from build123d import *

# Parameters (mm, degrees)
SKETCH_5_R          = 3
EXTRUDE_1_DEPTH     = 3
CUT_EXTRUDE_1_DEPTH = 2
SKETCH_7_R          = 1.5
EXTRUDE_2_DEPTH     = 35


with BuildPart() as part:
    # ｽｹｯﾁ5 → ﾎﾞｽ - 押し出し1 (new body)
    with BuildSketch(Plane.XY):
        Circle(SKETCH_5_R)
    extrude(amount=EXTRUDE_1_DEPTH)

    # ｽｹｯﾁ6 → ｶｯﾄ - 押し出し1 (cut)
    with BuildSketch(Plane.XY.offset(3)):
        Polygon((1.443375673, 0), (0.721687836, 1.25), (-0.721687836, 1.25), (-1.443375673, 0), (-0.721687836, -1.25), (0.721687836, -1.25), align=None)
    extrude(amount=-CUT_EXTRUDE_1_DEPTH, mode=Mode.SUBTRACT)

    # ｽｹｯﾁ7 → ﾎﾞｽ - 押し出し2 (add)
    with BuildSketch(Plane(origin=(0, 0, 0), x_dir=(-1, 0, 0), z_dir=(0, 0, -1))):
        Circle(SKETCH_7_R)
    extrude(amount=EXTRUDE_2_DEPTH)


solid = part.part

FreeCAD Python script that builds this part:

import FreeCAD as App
import Part
import Sketcher

V = App.Vector
Q = App.Units.Quantity


def add_polygon(sketch, points):
    """Adds a closed chain of lines whose ends are joined by coincident constraints."""
    first, n = sketch.GeometryCount, len(points)
    for a, b in zip(points, points[1:] + points[:1]):
        sketch.addGeometry(Part.LineSegment(App.Vector(*a, 0), App.Vector(*b, 0)), False)
    for i in range(n):
        sketch.addConstraint(Sketcher.Constraint("Coincident", first + i, 2, first + (i + 1) % n, 1))

doc = App.newDocument("Part")
body = doc.addObject("PartDesign::Body", "Body")

sketch1 = body.newObject("Sketcher::SketchObject", "Sketch")
sketch1.AttachmentSupport = (doc.getObject("XY_Plane"), [""])
sketch1.MapMode = "FlatFace"
sketch1.addGeometry(Part.Circle(V(0, 0, 0), V(0, 0, 1), 3), False)
sketch1.addConstraint(Sketcher.Constraint("Coincident", 0, 3, -1, 1))
sketch1.addConstraint(Sketcher.Constraint("Diameter", 0, 6.0))
pad1 = body.newObject("PartDesign::Pad", "Pad")
pad1.Profile = sketch1
pad1.Length = 3

sketch2 = body.newObject("Sketcher::SketchObject", "Sketch001")
sketch2.AttachmentSupport = (doc.getObject("XY_Plane"), [""])
sketch2.MapMode = "FlatFace"
sketch2.AttachmentOffset = App.Placement(V(0, 0, 3), App.Rotation())
add_polygon(sketch2, [(1.4, 0), (0.7, 1.2), (-0.7, 1.2), (-1.4, 0), (-0.7, -1.2), (0.7, -1.2)])
sketch2.addConstraint(Sketcher.Constraint("Horizontal", 1))
sketch2.addConstraint(Sketcher.Constraint("Horizontal", 4))
sketch2.addConstraint(Sketcher.Constraint("Symmetric", 0, 2, 3, 2, -1, 1))
sketch2.addConstraint(Sketcher.Constraint("Symmetric", 2, 2, 5, 2, -1, 1))
sketch2.addConstraint(Sketcher.Constraint("PointOnObject", 2, 2, -1))
sketch2.addConstraint(Sketcher.Constraint("Parallel", 2, 5))
sketch2.addConstraint(Sketcher.Constraint("Vertical", 1, 2, 3, 2))
sketch2.addConstraint(Sketcher.Constraint("Angle", 0, Q("120 deg")))
sketch2.addConstraint(Sketcher.Constraint("DistanceY", 3, 2, 1, 2, 2.5))
sketch2.addConstraint(Sketcher.Constraint("DistanceX", 1, 2, 1, 1, 1.443376))
pocket1 = body.newObject("PartDesign::Pocket", "Pocket")
pocket1.Profile = sketch2
pocket1.Length = 2

sketch3 = body.newObject("Sketcher::SketchObject", "Sketch002")
sketch3.AttachmentSupport = (doc.getObject("XY_Plane"), [""])
sketch3.MapMode = "FlatFace"
sketch3.addGeometry(Part.Circle(V(0, 0, 0), V(0, 0, 1), 1.5), False)
sketch3.addConstraint(Sketcher.Constraint("Coincident", 0, 3, -1, 1))
sketch3.addConstraint(Sketcher.Constraint("Diameter", 0, 3.0))
pad2 = body.newObject("PartDesign::Pad", "Pad001")
pad2.Profile = sketch3
pad2.Length = 35
pad2.Reversed = True

doc.recompute()
